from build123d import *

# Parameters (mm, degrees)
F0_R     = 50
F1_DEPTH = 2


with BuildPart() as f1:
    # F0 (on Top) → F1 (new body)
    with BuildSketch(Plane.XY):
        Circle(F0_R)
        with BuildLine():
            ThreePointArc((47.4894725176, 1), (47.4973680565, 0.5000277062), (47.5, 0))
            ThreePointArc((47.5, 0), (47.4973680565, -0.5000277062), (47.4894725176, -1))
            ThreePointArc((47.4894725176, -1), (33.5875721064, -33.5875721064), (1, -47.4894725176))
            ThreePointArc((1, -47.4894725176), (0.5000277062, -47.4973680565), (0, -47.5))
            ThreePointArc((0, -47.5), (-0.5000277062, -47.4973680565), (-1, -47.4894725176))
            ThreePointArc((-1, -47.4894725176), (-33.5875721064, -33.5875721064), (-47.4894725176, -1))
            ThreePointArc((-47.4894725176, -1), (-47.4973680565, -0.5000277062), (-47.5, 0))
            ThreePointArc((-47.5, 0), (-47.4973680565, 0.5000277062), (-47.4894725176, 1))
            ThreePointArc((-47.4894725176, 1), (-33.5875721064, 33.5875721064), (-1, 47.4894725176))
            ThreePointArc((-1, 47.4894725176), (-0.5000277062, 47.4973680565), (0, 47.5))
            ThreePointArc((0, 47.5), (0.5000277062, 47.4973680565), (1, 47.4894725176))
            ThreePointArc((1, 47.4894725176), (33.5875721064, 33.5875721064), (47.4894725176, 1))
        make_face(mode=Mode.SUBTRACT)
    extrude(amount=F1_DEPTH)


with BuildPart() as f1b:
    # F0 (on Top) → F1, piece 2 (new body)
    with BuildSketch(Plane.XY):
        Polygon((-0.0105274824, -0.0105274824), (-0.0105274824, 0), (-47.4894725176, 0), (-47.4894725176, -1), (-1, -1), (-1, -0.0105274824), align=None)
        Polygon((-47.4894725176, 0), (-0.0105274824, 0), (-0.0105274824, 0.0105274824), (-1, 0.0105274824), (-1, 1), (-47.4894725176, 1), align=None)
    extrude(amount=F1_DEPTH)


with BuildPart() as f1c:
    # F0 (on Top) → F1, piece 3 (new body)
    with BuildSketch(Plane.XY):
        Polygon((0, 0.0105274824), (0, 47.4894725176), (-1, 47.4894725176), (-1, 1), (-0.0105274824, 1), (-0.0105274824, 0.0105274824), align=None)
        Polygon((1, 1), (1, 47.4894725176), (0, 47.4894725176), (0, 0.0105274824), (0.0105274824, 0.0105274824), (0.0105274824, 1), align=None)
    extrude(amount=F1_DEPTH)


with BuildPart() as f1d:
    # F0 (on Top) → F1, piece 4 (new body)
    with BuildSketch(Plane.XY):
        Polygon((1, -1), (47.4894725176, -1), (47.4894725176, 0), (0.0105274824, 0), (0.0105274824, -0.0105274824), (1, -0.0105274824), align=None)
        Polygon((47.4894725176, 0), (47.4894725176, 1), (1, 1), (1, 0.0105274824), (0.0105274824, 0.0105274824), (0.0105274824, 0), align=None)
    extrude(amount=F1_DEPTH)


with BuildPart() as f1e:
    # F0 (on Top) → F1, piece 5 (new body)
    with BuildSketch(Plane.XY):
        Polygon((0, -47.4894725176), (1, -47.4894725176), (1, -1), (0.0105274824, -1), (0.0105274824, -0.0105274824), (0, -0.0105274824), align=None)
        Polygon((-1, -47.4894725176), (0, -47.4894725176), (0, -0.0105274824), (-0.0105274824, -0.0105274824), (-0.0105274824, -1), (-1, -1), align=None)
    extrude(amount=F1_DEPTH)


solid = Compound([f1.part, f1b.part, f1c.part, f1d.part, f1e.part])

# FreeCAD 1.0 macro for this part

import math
import FreeCAD as App
import Part
import Sketcher
from FreeCAD import Vector


def add_polygon(sketch, points):
    """Adds a closed chain of lines whose ends are joined by coincident constraints."""
    first, n = sketch.GeometryCount, len(points)
    for a, b in zip(points, points[1:] + points[:1]):
        sketch.addGeometry(Part.LineSegment(App.Vector(*a, 0), App.Vector(*b, 0)), False)
    for i in range(n):
        sketch.addConstraint(Sketcher.Constraint("Coincident", first + i, 2, first + (i + 1) % n, 1))

doc = App.newDocument("Part")
params = doc.addObject("Spreadsheet::Sheet", "Params")
for row, (alias, value) in enumerate([
    ("sketch1_diameter", "100 mm"),
    ("sketch1_radius", "47.5 mm"),
    ("pad1_length", "2 mm"),
    ("sketch2_height", "2 mm"),
    ("pad2_length", "2 mm"),
    ("sketch3_width", "2 mm"),
    ("pad3_length", "2 mm"),
    ("sketch4_height", "2 mm"),
    ("pad4_length", "2 mm"),
    ("sketch5_width", "2 mm"),
    ("pad5_length", "2 mm"),
], start=1):
    params.set(f"A{row}", alias)
    params.set(f"B{row}", "=" + value)
    params.setAlias(f"B{row}", alias)

body = doc.addObject("PartDesign::Body", "Body")

# Sketch on XY plane
sketch1 = body.newObject("Sketcher::SketchObject", "Sketch")
sketch1.AttachmentSupport = (doc.getObject("XY_Plane"), [""])
sketch1.MapMode = "FlatFace"
sketch1.addGeometry([
    Part.Circle(Vector(0, 0, 0), Vector(0, 0, 1), 50),  # 0
    Part.ArcOfCircle(Part.Circle(Vector(0, 0, 0), Vector(0, 0, 1), 47.5), math.radians(1), math.radians(89)),  # 1
    Part.ArcOfCircle(Part.Circle(Vector(0, 0, 0), Vector(0, 0, 1), 47.5), math.radians(0), math.radians(1.21)),  # 2
    Part.ArcOfCircle(Part.Circle(Vector(0, 0, 0), Vector(0, 0, 1), 47.5), math.radians(-1.21), math.radians(0)),  # 3
    Part.ArcOfCircle(Part.Circle(Vector(0, 0, 0), Vector(0, 0, 1), 47.5), math.radians(-89), math.radians(-1)),  # 4
    Part.ArcOfCircle(Part.Circle(Vector(0, 0, 0), Vector(0, 0, 1), 47.5), math.radians(-90), math.radians(-88.79)),  # 5
    Part.ArcOfCircle(Part.Circle(Vector(0, 0, 0), Vector(0, 0, 1), 47.5), math.radians(-91.21), math.radians(-90)),  # 6
    Part.ArcOfCircle(Part.Circle(Vector(0, 0, 0), Vector(0, 0, 1), 47.5), math.radians(-179), math.radians(-91)),  # 7
    Part.ArcOfCircle(Part.Circle(Vector(0, 0, 0), Vector(0, 0, 1), 47.5), math.radians(180), math.radians(181.21)),  # 8
    Part.ArcOfCircle(Part.Circle(Vector(0, 0, 0), Vector(0, 0, 1), 47.5), math.radians(178.79), math.radians(180)),  # 9
    Part.ArcOfCircle(Part.Circle(Vector(0, 0, 0), Vector(0, 0, 1), 47.5), math.radians(91), math.radians(179)),  # 10
    Part.ArcOfCircle(Part.Circle(Vector(0, 0, 0), Vector(0, 0, 1), 47.5), math.radians(90), math.radians(91.21)),  # 11
    Part.ArcOfCircle(Part.Circle(Vector(0, 0, 0), Vector(0, 0, 1), 47.5), math.radians(88.79), math.radians(90)),  # 12
], False)
sketch1.addConstraint([
    Sketcher.Constraint("Tangent", 1, 1, 2, 2),
    Sketcher.Constraint("Tangent", 2, 1, 3, 2),
    Sketcher.Constraint("Tangent", 3, 1, 4, 2),
    Sketcher.Constraint("Tangent", 4, 1, 5, 2),
    Sketcher.Constraint("Tangent", 5, 1, 6, 2),
    Sketcher.Constraint("Tangent", 6, 1, 7, 2),
    Sketcher.Constraint("Tangent", 7, 1, 8, 2),
    Sketcher.Constraint("Tangent", 8, 1, 9, 2),
    Sketcher.Constraint("Tangent", 9, 1, 10, 2),
    Sketcher.Constraint("Tangent", 10, 1, 11, 2),
    Sketcher.Constraint("Tangent", 11, 1, 12, 2),
    Sketcher.Constraint("Tangent", 12, 1, 1, 2),
    Sketcher.Constraint("Coincident", 0, 3, -1, 1),
    Sketcher.Constraint("Coincident", 1, 3, -1, 1),
    Sketcher.Constraint("Coincident", 3, 3, -1, 1),
    Sketcher.Constraint("Coincident", 5, 3, -1, 1),
    Sketcher.Constraint("Coincident", 7, 3, -1, 1),
    Sketcher.Constraint("Coincident", 9, 3, -1, 1),
    Sketcher.Constraint("Equal", 10, 11),
    Sketcher.Constraint("PointOnObject", 2, 1, -1),
    Sketcher.Constraint("PointOnObject", 5, 1, -2),
    Sketcher.Constraint("PointOnObject", 8, 1, -1),
    Sketcher.Constraint("PointOnObject", 11, 1, -2),
    Sketcher.Constraint("Horizontal", 4, 1, 6, 1),
    Sketcher.Constraint("Horizontal", 3, 1, 7, 1),
    Sketcher.Constraint("Horizontal", 1, 1, 9, 1),
    Sketcher.Constraint("Horizontal", 10, 1, 12, 1),
    Sketcher.Constraint("Vertical", 1, 1, 3, 1),
    Sketcher.Constraint("Vertical", 6, 1, 10, 1),
    Sketcher.Constraint("Diameter", 0, 100.0),
    Sketcher.Constraint("Radius", 1, 47.5),
    Sketcher.Constraint("DistanceY", -1, 1, 1, 1, 1.0),
    Sketcher.Constraint("DistanceX", -1, 1, 4, 1, 1.0),
])
sketch1.setExpression("Constraints[29]", "Params.sketch1_diameter")
sketch1.setExpression("Constraints[30]", "Params.sketch1_radius")
pad1 = body.newObject("PartDesign::Pad", "Pad")
pad1.Profile = sketch1
pad1.setExpression("Length", "Params.pad1_length")
body2 = doc.addObject("PartDesign::Body", "Body001")

# Sketch on XY plane
sketch2 = body2.newObject("Sketcher::SketchObject", "Sketch001")
sketch2.AttachmentSupport = (doc.getObject("XY_Plane001"), [""])
sketch2.MapMode = "FlatFace"
add_polygon(sketch2, [(-0.011, -0.011), (-0.011, 0.011), (-1, 0.011), (-1, 1), (-47.489, 1), (-47.489, -1), (-1, -1), (-1, -0.011)])  # lines 0-7
sketch2.addConstraint([
    Sketcher.Constraint("Vertical", 0),
    Sketcher.Constraint("Horizontal", 1),
    Sketcher.Constraint("Vertical", 2),
    Sketcher.Constraint("Horizontal", 3),
    Sketcher.Constraint("Vertical", 4),
    Sketcher.Constraint("Horizontal", 5),
    Sketcher.Constraint("Vertical", 6),
    Sketcher.Constraint("Horizontal", 7),
    Sketcher.Constraint("Symmetric", 2, 2, 5, 2, -1),
    Sketcher.Constraint("Equal", 7, 2),
    Sketcher.Constraint("Equal", 2, 6),
    Sketcher.Constraint("DistanceY", 4, 2, 4, 1, 2.0),
    Sketcher.Constraint("DistanceX", 1, 2, -1, 1, 1.0),
    Sketcher.Constraint("DistanceX", 1, 2, 1, 1, 0.989473),
    Sketcher.Constraint("DistanceX", 3, 2, 3, 1, 46.489473),
])
sketch2.setExpression("Constraints[19]", "Params.sketch2_height")
pad2 = body2.newObject("PartDesign::Pad", "Pad001")
pad2.Profile = sketch2
pad2.setExpression("Length", "Params.pad2_length")
body3 = doc.addObject("PartDesign::Body", "Body002")

# Sketch on XY plane
sketch3 = body3.newObject("Sketcher::SketchObject", "Sketch002")
sketch3.AttachmentSupport = (doc.getObject("XY_Plane002"), [""])
sketch3.MapMode = "FlatFace"
add_polygon(sketch3, [(-1, 47.489), (-1, 1), (-0.011, 1), (-0.011, 0.011), (0.011, 0.011), (0.011, 1), (1, 1), (1, 47.489)])  # lines 0-7
sketch3.addConstraint([
    Sketcher.Constraint("Vertical", 0),
    Sketcher.Constraint("Horizontal", 1),
    Sketcher.Constraint("Vertical", 2),
    Sketcher.Constraint("Horizontal", 3),
    Sketcher.Constraint("Vertical", 4),
    Sketcher.Constraint("Horizontal", 5),
    Sketcher.Constraint("Vertical", 6),
    Sketcher.Constraint("Horizontal", 7),
    Sketcher.Constraint("Symmetric", 1, 2, 4, 2, -2),
    Sketcher.Constraint("Equal", 1, 5),
    Sketcher.Constraint("Equal", 5, 2),
    Sketcher.Constraint("DistanceX", 7, 2, 7, 1, 2.0),
    Sketcher.Constraint("DistanceY", -1, 1, 0, 2, 1.0),
    Sketcher.Constraint("DistanceX", 1, 1, 1, 2, 0.989473),
    Sketcher.Constraint("DistanceY", 0, 2, 0, 1, 46.489473),
])
sketch3.setExpression("Constraints[19]", "Params.sketch3_width")
pad3 = body3.newObject("PartDesign::Pad", "Pad002")
pad3.Profile = sketch3
pad3.setExpression("Length", "Params.pad3_length")
body4 = doc.addObject("PartDesign::Body", "Body003")

# Sketch on XY plane
sketch4 = body4.newObject("Sketcher::SketchObject", "Sketch003")
sketch4.AttachmentSupport = (doc.getObject("XY_Plane003"), [""])
sketch4.MapMode = "FlatFace"
add_polygon(sketch4, [(1, -1), (47.489, -1), (47.489, 1), (1, 1), (1, 0.011), (0.011, 0.011), (0.011, -0.011), (1, -0.011)])  # lines 0-7
sketch4.addConstraint([
    Sketcher.Constraint("Horizontal", 0),
    Sketcher.Constraint("Vertical", 1),
    Sketcher.Constraint("Horizontal", 2),
    Sketcher.Constraint("Vertical", 3),
    Sketcher.Constraint("Horizontal", 4),
    Sketcher.Constraint("Vertical", 5),
    Sketcher.Constraint("Horizontal", 6),
    Sketcher.Constraint("Vertical", 7),
    Sketcher.Constraint("Symmetric", 3, 2, 6, 2, -1),
    Sketcher.Constraint("Equal", 6, 3),
    Sketcher.Constraint("Equal", 3, 7),
    Sketcher.Constraint("DistanceY", 1, 1, 1, 2, 2.0),
    Sketcher.Constraint("DistanceX", -1, 1, 2, 2, 1.0),
    Sketcher.Constraint("DistanceX", 0, 1, 0, 2, 46.489473),
    Sketcher.Constraint("DistanceX", 4, 2, 4, 1, 0.989473),
])
sketch4.setExpression("Constraints[19]", "Params.sketch4_height")
pad4 = body4.newObject("PartDesign::Pad", "Pad003")
pad4.Profile = sketch4
pad4.setExpression("Length", "Params.pad4_length")
body5 = doc.addObject("PartDesign::Body", "Body004")

# Sketch on XY plane
sketch5 = body5.newObject("Sketcher::SketchObject", "Sketch004")
sketch5.AttachmentSupport = (doc.getObject("XY_Plane004"), [""])
sketch5.MapMode = "FlatFace"
add_polygon(sketch5, [(1, -47.489), (1, -1), (0.011, -1), (0.011, -0.011), (-0.011, -0.011), (-0.011, -1), (-1, -1), (-1, -47.489)])  # lines 0-7
sketch5.addConstraint([
    Sketcher.Constraint("Vertical", 0),
    Sketcher.Constraint("Horizontal", 1),
    Sketcher.Constraint("Vertical", 2),
    Sketcher.Constraint("Horizontal", 3),
    Sketcher.Constraint("Vertical", 4),
    Sketcher.Constraint("Horizontal", 5),
    Sketcher.Constraint("Vertical", 6),
    Sketcher.Constraint("Horizontal", 7),
    Sketcher.Constraint("Symmetric", 1, 2, 4, 2, -2),
    Sketcher.Constraint("Equal", 1, 5),
    Sketcher.Constraint("Equal", 5, 2),
    Sketcher.Constraint("DistanceX", 7, 1, 7, 2, 2.0),
    Sketcher.Constraint("DistanceY", 0, 2, -1, 1, 1.0),
    Sketcher.Constraint("DistanceX", 1, 2, 1, 1, 0.989473),
    Sketcher.Constraint("DistanceY", 0, 1, 0, 2, 46.489473),
])
sketch5.setExpression("Constraints[19]", "Params.sketch5_width")
pad5 = body5.newObject("PartDesign::Pad", "Pad004")
pad5.Profile = sketch5
pad5.setExpression("Length", "Params.pad5_length")

doc.recompute()
